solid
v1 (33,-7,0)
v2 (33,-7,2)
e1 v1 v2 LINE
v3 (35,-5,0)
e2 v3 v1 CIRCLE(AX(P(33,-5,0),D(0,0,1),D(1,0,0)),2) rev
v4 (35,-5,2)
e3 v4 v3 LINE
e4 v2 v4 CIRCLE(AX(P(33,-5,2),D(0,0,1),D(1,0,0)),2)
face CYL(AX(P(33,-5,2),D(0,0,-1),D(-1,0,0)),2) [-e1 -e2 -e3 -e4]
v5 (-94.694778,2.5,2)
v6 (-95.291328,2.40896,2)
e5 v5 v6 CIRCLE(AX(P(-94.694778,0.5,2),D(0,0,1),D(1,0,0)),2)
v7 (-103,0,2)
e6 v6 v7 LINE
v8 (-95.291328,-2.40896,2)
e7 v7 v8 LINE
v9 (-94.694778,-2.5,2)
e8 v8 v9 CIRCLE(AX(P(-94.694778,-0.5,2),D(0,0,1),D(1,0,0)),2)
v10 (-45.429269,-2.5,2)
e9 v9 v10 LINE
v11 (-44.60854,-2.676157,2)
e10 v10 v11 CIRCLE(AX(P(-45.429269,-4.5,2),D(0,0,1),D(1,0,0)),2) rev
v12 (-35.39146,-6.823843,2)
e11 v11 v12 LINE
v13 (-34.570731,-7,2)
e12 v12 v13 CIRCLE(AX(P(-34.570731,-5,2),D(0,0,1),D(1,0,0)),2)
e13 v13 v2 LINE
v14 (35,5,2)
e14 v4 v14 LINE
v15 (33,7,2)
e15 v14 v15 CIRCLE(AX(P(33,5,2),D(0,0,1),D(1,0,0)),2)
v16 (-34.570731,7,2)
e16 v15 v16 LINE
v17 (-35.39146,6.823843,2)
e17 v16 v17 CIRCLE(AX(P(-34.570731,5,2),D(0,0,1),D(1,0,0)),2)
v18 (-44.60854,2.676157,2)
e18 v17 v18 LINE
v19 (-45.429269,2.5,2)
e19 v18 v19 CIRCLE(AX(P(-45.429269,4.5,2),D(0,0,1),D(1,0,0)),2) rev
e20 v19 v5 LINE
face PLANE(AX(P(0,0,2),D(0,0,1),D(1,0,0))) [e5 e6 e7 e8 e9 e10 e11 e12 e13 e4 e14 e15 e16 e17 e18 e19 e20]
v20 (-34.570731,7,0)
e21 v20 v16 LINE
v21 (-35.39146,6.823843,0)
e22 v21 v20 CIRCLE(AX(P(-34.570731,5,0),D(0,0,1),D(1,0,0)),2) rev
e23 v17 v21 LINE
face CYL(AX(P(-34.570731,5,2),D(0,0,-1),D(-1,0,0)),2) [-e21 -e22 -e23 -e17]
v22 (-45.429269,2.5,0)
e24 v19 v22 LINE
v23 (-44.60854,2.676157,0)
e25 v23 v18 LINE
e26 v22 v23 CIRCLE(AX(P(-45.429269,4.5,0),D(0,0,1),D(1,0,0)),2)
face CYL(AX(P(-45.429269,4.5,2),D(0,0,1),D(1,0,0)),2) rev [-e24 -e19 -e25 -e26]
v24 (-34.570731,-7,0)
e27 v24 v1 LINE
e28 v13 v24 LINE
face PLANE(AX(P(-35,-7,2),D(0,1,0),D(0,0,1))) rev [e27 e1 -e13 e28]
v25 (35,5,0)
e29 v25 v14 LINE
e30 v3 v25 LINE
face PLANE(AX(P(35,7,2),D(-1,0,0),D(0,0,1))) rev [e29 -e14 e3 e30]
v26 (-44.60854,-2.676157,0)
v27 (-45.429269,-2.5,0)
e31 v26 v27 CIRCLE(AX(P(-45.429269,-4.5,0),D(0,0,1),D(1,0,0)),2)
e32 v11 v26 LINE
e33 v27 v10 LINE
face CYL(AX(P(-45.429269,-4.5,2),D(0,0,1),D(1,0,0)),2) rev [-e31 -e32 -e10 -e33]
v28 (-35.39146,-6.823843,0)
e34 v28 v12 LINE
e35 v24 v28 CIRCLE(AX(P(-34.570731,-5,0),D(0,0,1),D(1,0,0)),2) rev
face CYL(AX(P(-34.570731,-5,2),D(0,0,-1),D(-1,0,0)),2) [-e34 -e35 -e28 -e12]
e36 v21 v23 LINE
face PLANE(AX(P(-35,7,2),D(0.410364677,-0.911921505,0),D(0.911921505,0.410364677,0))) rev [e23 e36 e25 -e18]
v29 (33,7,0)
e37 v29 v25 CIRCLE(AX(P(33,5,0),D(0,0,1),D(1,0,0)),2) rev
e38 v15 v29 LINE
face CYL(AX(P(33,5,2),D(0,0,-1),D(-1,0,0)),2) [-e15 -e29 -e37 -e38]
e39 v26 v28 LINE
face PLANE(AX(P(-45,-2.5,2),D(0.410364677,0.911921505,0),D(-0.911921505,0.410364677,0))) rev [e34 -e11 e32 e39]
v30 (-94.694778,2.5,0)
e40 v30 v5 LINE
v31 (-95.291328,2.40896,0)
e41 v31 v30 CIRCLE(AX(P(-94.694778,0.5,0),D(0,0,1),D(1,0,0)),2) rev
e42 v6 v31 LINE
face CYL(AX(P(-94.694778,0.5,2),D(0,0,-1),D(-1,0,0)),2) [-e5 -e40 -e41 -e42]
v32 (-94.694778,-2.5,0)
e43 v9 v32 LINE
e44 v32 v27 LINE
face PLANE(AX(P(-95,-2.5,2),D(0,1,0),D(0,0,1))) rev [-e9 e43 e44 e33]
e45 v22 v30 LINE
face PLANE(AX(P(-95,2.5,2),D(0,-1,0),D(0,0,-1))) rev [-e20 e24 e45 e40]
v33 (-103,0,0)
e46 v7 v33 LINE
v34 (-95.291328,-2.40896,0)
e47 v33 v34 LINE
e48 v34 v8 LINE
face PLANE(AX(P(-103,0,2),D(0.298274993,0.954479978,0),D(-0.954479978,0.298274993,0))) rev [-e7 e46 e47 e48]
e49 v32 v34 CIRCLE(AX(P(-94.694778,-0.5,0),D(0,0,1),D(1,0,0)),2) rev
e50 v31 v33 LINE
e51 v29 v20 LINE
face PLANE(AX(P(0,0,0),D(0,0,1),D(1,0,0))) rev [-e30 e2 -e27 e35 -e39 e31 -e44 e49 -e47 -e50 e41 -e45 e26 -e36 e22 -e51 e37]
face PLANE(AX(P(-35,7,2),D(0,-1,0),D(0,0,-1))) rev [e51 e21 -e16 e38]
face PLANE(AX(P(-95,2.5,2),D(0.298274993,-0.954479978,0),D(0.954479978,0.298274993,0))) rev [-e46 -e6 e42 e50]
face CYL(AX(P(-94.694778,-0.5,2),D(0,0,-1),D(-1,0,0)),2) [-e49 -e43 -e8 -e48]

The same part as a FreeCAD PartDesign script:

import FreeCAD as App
import Part
import Sketcher

V = App.Vector


def edges_at(feature, points):
    """Names of the edges that pass closest to the given points."""
    edges = feature.Shape.Edges
    near = lambda p: min(range(len(edges)), key=lambda i: edges[i].distToShape(Part.Vertex(*p))[0])
    return sorted({f"Edge{near(p) + 1}" for p in points})


def add_polygon(sketch, points):
    """Adds a closed chain of lines whose ends are joined by coincident constraints."""
    first, n = sketch.GeometryCount, len(points)
    for a, b in zip(points, points[1:] + points[:1]):
        sketch.addGeometry(Part.LineSegment(App.Vector(*a, 0), App.Vector(*b, 0)), False)
    for i in range(n):
        sketch.addConstraint(Sketcher.Constraint("Coincident", first + i, 2, first + (i + 1) % n, 1))

doc = App.newDocument("Part")
body = doc.addObject("PartDesign::Body", "Body")

sketch1 = doc.addObject("Sketcher::SketchObject", "Sketch")
body.addObject(sketch1)
sketch1.AttachmentSupport = (doc.XY_Plane, [""])
sketch1.MapMode = "FlatFace"
add_polygon(sketch1, [(-35, 7), (-45, 2), (-95, 2), (-103, 0), (-95, -2), (-45, -2), (-35, -7), (35, -7), (35, 7)])
sketch1.addConstraint(Sketcher.Constraint("Horizontal", 1))
sketch1.addConstraint(Sketcher.Constraint("Horizontal", 4))
sketch1.addConstraint(Sketcher.Constraint("Horizontal", 6))
sketch1.addConstraint(Sketcher.Constraint("Vertical", 7))
sketch1.addConstraint(Sketcher.Constraint("Horizontal", 8))
sketch1.addConstraint(Sketcher.Constraint("Symmetric", 5, 2, 7, 2, -1, 1))
sketch1.addConstraint(Sketcher.Constraint("Symmetric", 1, 2, 3, 2, -1))
sketch1.addConstraint(Sketcher.Constraint("PointOnObject", 2, 2, -1))
sketch1.addConstraint(Sketcher.Constraint("Vertical", 0, 2, 4, 2))
sketch1.addConstraint(Sketcher.Constraint("Vertical", 5, 2, 8, 2))
sketch1.addConstraint(Sketcher.Constraint("DistanceX", 1, 2, 1, 1, 50.0))
sketch1.addConstraint(Sketcher.Constraint("DistanceX", 6, 1, 6, 2, 70.0))
sketch1.addConstraint(Sketcher.Constraint("DistanceY", 7, 1, 7, 2, 14.0))
sketch1.addConstraint(Sketcher.Constraint("DistanceX", 0, 2, -1, 1, 45.0))
sketch1.addConstraint(Sketcher.Constraint("DistanceX", 2, 2, -1, 1, 103.0))
sketch1.addConstraint(Sketcher.Constraint("DistanceY", 3, 2, 1, 2, 5.0))
pad1 = doc.addObject("PartDesign::Pad", "Pad")
body.addObject(pad1)
pad1.Profile = sketch1
pad1.Length = 2
doc.recompute()

fillet = doc.addObject("PartDesign::Fillet", "Fillet")
body.addObject(fillet)
fillet.Base = (pad1, edges_at(pad1, [
    (35, -7, 1),
    (-35, -7, 1),
    (-45, -2.5, 1),
    (-95, -2.5, 1),
    (-95, 2.5, 1),
    (-45, 2.5, 1),
    (-35, 7, 1),
    (35, 7, 1),
]))
fillet.Radius = 2

doc.recompute()
